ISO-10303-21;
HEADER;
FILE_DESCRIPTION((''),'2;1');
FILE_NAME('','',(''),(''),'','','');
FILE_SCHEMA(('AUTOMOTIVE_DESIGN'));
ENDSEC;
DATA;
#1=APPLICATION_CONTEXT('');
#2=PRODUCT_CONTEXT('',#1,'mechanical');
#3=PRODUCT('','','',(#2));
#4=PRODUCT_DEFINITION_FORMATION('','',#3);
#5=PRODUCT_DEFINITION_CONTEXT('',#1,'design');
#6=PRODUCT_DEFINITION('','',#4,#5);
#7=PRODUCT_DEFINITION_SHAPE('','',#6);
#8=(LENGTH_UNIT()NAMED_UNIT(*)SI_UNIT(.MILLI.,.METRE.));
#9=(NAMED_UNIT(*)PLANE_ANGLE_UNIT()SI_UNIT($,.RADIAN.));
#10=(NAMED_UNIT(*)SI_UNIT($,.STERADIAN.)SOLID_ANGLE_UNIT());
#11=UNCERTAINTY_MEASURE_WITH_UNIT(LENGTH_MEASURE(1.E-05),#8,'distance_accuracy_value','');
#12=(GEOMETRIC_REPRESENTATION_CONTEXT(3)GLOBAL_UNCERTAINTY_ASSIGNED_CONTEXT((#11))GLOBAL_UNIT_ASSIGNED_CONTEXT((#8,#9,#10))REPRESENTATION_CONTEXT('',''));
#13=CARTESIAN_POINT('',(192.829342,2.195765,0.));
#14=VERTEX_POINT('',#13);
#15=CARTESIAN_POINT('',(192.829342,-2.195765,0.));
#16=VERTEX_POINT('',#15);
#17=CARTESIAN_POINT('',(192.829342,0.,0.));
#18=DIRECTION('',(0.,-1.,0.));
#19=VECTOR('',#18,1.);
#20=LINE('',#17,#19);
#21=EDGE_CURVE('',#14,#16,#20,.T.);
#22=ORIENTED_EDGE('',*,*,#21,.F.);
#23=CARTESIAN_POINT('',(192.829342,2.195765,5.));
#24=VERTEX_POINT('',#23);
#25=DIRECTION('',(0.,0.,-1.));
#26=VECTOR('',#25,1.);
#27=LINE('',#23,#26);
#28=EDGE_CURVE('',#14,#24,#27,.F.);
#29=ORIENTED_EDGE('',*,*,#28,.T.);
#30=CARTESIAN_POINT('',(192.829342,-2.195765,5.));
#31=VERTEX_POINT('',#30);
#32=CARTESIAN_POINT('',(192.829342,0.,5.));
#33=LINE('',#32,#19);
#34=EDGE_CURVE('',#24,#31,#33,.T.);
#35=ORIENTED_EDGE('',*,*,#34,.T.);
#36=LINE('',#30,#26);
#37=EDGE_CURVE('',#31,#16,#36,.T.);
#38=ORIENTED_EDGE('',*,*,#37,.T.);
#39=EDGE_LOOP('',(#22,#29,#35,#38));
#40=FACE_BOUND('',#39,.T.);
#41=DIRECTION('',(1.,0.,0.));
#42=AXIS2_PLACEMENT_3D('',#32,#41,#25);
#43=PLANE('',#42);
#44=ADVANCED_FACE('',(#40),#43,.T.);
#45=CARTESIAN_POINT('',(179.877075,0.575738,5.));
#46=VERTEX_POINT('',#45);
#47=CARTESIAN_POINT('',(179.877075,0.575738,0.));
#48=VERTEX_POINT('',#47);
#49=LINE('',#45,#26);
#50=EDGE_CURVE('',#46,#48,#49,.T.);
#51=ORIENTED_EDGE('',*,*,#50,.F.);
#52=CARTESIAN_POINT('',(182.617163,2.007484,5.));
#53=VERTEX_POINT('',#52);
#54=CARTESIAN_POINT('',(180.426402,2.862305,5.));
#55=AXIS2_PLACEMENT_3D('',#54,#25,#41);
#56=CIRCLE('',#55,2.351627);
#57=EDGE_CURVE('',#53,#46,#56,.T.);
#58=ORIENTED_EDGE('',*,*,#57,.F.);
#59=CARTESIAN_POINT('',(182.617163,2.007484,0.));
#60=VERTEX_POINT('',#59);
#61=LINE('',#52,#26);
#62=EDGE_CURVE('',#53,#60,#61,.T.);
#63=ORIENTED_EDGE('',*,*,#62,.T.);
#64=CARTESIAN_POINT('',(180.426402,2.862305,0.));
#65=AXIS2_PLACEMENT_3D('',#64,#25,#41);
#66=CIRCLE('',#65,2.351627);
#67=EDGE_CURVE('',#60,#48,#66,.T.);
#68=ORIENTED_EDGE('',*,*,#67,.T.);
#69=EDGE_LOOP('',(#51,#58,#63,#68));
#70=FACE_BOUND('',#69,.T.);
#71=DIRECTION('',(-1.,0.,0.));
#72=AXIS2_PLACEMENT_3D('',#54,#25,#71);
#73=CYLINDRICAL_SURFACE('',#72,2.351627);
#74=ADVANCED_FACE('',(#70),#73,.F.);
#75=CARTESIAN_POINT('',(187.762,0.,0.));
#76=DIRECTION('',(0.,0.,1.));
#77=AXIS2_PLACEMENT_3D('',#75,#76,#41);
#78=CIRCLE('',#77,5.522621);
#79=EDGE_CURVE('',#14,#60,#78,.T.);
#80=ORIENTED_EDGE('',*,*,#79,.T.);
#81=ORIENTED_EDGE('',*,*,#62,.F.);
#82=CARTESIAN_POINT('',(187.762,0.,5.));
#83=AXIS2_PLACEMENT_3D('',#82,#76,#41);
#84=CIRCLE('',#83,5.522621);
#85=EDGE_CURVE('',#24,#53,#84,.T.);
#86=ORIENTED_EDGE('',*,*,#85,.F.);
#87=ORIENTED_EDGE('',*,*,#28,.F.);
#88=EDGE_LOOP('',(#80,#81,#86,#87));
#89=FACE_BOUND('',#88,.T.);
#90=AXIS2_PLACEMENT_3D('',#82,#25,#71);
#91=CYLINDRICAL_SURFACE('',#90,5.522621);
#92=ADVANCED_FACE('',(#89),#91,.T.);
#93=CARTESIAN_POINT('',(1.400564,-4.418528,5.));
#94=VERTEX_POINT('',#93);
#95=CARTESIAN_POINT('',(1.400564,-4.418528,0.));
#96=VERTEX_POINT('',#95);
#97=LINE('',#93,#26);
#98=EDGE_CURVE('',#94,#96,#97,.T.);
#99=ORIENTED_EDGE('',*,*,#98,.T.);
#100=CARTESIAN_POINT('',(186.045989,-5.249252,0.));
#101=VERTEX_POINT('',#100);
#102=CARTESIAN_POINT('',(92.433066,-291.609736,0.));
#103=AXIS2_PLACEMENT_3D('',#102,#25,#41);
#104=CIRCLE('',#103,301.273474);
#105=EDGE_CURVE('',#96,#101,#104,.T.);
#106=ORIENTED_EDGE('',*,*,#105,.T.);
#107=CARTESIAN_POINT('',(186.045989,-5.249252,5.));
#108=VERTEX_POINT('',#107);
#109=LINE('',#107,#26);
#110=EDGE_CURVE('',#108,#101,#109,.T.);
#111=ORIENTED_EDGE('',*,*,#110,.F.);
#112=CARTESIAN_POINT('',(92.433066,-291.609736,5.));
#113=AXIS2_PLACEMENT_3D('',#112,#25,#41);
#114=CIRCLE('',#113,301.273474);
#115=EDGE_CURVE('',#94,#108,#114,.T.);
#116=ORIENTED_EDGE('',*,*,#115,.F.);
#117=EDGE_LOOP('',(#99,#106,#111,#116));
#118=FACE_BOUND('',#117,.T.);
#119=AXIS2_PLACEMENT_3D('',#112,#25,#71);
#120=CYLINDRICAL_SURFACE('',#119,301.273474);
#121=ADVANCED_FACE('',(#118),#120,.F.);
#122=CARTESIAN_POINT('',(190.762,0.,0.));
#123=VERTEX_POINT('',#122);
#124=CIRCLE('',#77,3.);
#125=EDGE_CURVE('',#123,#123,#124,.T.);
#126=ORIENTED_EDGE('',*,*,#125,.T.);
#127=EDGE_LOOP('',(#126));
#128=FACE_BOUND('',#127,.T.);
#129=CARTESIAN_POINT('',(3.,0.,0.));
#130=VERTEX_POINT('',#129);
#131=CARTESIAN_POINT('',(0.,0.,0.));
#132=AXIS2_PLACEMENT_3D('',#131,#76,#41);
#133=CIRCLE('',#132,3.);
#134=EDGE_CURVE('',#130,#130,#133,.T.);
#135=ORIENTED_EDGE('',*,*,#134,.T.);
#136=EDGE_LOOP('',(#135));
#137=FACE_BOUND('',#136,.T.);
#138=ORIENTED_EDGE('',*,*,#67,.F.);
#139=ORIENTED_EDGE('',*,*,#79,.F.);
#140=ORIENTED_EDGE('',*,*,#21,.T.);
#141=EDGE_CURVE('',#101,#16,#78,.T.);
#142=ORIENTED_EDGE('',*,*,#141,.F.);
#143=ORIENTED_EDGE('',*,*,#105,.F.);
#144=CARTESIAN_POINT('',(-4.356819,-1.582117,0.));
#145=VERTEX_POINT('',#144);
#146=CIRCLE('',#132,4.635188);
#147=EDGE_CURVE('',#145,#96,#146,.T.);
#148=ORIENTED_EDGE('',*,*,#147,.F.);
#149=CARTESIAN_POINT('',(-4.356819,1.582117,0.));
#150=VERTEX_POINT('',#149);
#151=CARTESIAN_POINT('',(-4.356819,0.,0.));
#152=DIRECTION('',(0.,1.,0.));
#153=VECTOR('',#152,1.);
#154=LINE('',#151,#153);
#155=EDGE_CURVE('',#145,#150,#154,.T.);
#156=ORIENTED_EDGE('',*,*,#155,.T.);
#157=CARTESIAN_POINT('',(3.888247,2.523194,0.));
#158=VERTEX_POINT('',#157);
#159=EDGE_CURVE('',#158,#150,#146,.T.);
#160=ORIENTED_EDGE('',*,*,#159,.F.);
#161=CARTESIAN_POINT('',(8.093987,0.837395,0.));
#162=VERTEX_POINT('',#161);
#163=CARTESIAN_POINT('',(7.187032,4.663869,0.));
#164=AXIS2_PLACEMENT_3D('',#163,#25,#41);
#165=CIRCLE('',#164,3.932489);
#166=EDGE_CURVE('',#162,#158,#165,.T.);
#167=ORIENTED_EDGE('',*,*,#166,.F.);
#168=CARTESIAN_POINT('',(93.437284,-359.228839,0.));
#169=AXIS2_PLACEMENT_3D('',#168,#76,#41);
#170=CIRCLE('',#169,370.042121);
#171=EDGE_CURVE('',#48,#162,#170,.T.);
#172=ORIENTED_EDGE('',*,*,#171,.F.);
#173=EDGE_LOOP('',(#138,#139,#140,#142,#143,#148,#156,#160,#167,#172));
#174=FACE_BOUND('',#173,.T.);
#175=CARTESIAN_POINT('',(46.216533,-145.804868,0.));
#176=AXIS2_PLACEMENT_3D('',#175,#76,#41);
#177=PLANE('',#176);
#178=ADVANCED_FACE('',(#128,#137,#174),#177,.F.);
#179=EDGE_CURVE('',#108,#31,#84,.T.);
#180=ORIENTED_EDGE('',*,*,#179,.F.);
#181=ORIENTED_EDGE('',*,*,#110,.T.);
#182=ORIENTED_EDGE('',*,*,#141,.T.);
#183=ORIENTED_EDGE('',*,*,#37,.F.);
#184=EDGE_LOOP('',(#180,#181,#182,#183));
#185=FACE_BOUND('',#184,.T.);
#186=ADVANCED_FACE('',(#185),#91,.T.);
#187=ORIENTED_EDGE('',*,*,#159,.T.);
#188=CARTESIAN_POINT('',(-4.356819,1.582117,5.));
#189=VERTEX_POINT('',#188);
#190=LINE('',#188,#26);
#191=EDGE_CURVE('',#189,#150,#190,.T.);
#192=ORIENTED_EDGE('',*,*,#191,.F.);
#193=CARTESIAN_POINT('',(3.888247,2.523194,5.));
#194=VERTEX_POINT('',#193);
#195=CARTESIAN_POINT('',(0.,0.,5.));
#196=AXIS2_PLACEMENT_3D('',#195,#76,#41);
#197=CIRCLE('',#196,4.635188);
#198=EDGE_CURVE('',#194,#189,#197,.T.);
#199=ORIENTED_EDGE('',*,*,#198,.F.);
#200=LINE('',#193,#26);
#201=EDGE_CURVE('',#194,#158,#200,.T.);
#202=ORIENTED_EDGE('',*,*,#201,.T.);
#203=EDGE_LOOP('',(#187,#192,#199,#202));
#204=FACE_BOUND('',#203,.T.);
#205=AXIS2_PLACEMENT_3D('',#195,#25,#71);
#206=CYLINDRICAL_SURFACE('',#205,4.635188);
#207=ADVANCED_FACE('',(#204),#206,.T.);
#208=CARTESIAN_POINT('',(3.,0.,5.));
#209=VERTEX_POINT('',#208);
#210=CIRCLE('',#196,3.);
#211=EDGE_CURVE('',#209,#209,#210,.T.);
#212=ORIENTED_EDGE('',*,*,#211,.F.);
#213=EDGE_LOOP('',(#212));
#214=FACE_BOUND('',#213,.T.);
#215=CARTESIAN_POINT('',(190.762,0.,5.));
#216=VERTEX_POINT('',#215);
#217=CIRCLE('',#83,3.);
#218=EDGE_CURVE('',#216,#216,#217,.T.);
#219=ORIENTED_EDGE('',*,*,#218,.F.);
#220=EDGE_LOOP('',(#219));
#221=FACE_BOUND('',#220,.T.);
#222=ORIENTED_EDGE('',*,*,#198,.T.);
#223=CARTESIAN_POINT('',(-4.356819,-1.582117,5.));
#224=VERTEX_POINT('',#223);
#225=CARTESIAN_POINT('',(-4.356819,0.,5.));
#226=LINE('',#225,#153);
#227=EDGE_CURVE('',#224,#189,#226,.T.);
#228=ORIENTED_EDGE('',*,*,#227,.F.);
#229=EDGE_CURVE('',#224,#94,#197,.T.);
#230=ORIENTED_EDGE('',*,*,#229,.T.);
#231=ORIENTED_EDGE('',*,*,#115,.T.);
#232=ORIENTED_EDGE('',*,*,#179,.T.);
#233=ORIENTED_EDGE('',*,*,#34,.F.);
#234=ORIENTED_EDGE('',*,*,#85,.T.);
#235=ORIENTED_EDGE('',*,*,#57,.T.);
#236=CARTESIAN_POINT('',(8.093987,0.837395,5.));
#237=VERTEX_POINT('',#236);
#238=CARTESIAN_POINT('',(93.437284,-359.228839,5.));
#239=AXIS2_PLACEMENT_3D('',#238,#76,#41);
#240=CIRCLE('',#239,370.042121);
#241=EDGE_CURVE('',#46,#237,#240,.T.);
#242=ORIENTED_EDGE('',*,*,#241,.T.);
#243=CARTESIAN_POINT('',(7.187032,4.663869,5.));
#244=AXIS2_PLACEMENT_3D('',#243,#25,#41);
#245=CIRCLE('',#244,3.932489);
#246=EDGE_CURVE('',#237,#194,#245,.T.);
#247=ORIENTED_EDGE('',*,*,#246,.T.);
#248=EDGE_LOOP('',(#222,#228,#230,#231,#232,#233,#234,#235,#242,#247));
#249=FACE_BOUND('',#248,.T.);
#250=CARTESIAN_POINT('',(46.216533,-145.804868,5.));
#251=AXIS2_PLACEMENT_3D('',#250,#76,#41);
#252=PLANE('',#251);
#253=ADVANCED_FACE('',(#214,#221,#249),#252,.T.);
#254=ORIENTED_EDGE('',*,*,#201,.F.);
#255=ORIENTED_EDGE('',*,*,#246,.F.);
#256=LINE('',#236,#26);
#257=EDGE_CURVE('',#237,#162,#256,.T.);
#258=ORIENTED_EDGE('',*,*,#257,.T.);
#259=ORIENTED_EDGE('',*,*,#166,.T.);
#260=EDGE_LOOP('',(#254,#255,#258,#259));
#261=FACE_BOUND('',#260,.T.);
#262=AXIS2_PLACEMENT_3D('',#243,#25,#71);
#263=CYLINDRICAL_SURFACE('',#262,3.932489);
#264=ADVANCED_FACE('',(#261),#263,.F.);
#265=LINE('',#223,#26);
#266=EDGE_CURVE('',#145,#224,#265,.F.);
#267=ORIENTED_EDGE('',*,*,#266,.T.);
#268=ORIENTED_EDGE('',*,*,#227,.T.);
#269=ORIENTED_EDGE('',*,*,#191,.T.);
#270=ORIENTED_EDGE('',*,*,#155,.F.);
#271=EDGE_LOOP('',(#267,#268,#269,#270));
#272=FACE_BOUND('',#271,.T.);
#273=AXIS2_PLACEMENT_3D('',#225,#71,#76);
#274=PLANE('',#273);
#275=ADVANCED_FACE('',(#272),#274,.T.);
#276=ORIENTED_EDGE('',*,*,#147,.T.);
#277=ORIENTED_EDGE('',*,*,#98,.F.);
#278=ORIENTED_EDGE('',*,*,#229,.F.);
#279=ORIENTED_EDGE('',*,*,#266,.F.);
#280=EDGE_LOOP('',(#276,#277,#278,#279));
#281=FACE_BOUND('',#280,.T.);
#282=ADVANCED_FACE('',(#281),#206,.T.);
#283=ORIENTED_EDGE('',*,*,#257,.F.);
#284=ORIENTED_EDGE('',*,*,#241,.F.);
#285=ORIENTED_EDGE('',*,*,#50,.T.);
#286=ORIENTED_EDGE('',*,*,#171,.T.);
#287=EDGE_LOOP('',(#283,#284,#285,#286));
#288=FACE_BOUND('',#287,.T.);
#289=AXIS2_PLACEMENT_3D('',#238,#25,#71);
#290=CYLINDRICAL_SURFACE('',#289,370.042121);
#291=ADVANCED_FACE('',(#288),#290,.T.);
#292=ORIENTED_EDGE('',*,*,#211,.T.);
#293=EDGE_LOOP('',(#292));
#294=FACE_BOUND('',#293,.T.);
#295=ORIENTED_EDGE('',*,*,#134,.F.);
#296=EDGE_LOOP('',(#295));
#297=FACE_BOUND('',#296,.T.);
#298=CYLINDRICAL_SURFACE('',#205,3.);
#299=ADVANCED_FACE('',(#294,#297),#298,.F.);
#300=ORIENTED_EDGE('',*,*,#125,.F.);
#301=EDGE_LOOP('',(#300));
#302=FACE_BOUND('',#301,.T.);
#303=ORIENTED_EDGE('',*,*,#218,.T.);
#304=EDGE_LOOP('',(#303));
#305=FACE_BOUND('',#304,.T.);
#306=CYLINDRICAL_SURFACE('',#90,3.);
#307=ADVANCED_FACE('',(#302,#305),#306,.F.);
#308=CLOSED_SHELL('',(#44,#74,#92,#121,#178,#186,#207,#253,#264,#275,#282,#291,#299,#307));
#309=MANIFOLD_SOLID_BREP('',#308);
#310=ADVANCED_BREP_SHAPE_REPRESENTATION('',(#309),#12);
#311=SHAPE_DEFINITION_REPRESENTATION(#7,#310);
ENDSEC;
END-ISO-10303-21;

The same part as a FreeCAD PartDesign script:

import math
import FreeCAD as App
import Part
import Sketcher


def add_polygon(sketch, points):
    """Adds a closed chain of lines whose ends are joined by coincident constraints."""
    first, n = sketch.GeometryCount, len(points)
    for a, b in zip(points, points[1:] + points[:1]):
        sketch.addGeometry(Part.LineSegment(App.Vector(*a, 0), App.Vector(*b, 0)), False)
    for i in range(n):
        sketch.addConstraint(Sketcher.Constraint("Coincident", first + i, 2, first + (i + 1) % n, 1))

doc = App.newDocument("Part")
body = doc.addObject("PartDesign::Body", "Body")

# Sketch on XY plane
sketch1 = body.newObject("Sketcher::SketchObject", "Sketch")
sketch1.AttachmentSupport = (doc.getObject("XY_Plane"), [""])
sketch1.MapMode = "FlatFace"
sketch1.addGeometry(Part.ArcOfCircle(Part.Circle(App.Vector(187.8, 0, 0), App.Vector(0, 0, 1), 5.5), math.radians(-108), math.radians(159)), False)
sketch1.addGeometry(Part.ArcOfCircle(Part.Circle(App.Vector(180.4, 2.9, 0), App.Vector(0, 0, 1), 2.4), math.radians(-104), math.radians(-21)), False)
sketch1.addGeometry(Part.ArcOfCircle(Part.Circle(App.Vector(93.4, -359.2, 0), App.Vector(0, 0, 1), 370), math.radians(76), math.radians(103)), False)
sketch1.addGeometry(Part.ArcOfCircle(Part.Circle(App.Vector(7.2, 4.7, 0), App.Vector(0, 0, 1), 3.9), math.radians(-147), math.radians(-77)), False)
sketch1.addGeometry(Part.ArcOfCircle(Part.Circle(App.Vector(0, 0, 0), App.Vector(0, 0, 1), 4.6), math.radians(33), math.radians(288)), False)
sketch1.addGeometry(Part.ArcOfCircle(Part.Circle(App.Vector(92.4, -291.6, 0), App.Vector(0, 0, 1), 301.3), math.radians(72), math.radians(108)), False)
sketch1.addGeometry(Part.Circle(App.Vector(0, 0, 0), App.Vector(0, 0, 1), 3), False)
sketch1.addGeometry(Part.Circle(App.Vector(187.8, 0, 0), App.Vector(0, 0, 1), 3), False)
sketch1.addConstraint(Sketcher.Constraint("Tangent", 0, 2, 1, 2))
sketch1.addConstraint(Sketcher.Constraint("Tangent", 1, 1, 2, 1))
sketch1.addConstraint(Sketcher.Constraint("Tangent", 2, 2, 3, 2))
sketch1.addConstraint(Sketcher.Constraint("Tangent", 3, 1, 4, 1))
sketch1.addConstraint(Sketcher.Constraint("Tangent", 4, 2, 5, 2))
sketch1.addConstraint(Sketcher.Constraint("Tangent", 5, 1, 0, 1))
sketch1.addConstraint(Sketcher.Constraint("Coincident", 4, 3, -1, 1))
sketch1.addConstraint(Sketcher.Constraint("Coincident", 6, 3, -1, 1))
sketch1.addConstraint(Sketcher.Constraint("Coincident", 7, 3, 0, 3))
sketch1.addConstraint(Sketcher.Constraint("Equal", 6, 7))
sketch1.addConstraint(Sketcher.Constraint("PointOnObject", 0, 3, -1))
sketch1.addConstraint(Sketcher.Constraint("Diameter", 6, 6.0))
sketch1.addConstraint(Sketcher.Constraint("Radius", 0, 5.522621))
sketch1.addConstraint(Sketcher.Constraint("Radius", 2, 370.042121))
sketch1.addConstraint(Sketcher.Constraint("Radius", 3, 3.932489))
sketch1.addConstraint(Sketcher.Constraint("Radius", 4, 4.635188))
sketch1.addConstraint(Sketcher.Constraint("DistanceX", -1, 1, 0, 3, 187.762))
sketch1.addConstraint(Sketcher.Constraint("Radius", 1, 2.351627))
sketch1.addConstraint(Sketcher.Constraint("Radius", 5, 301.273474))
sketch1.addConstraint(Sketcher.Constraint("DistanceY", 2, 2, 3, 1, 1.685799))
sketch1.addConstraint(Sketcher.Constraint("DistanceY", 2, 3, -1, 1, 359.228839))
pad1 = body.newObject("PartDesign::Pad", "Pad")
pad1.Profile = sketch1
pad1.Length = 5

# Sketch on XY plane
sketch2 = body.newObject("Sketcher::SketchObject", "Sketch001")
sketch2.AttachmentSupport = (doc.getObject("XY_Plane"), [""])
sketch2.MapMode = "FlatFace"
add_polygon(sketch2, [(192.8, 4.1), (192.8, -3.4), (194.4, -3.4), (194.4, 4.1)])  # lines 0-3
add_polygon(sketch2, [(-5, 2.5), (-5, -2.6), (-4.4, -2.6), (-4.4, 2.5)])  # lines 4-7
sketch2.addConstraint(Sketcher.Constraint("Vertical", 0))
sketch2.addConstraint(Sketcher.Constraint("Horizontal", 1))
sketch2.addConstraint(Sketcher.Constraint("Vertical", 2))
sketch2.addConstraint(Sketcher.Constraint("Horizontal", 3))
sketch2.addConstraint(Sketcher.Constraint("Vertical", 4))
sketch2.addConstraint(Sketcher.Constraint("Horizontal", 5))
sketch2.addConstraint(Sketcher.Constraint("Vertical", 6))
sketch2.addConstraint(Sketcher.Constraint("Horizontal", 7))
sketch2.addConstraint(Sketcher.Constraint("DistanceX", 1, 1, 1, 2, 1.618529))
sketch2.addConstraint(Sketcher.Constraint("DistanceX", 5, 1, 5, 2, 0.65183))
sketch2.addConstraint(Sketcher.Constraint("DistanceY", 0, 2, 0, 1, 7.505646))
sketch2.addConstraint(Sketcher.Constraint("DistanceY", 4, 2, 4, 1, 5.051684))
sketch2.addConstraint(Sketcher.Constraint("DistanceX", -1, 1, 0, 2, 192.829342))
sketch2.addConstraint(Sketcher.Constraint("DistanceX", 4, 2, -1, 1, 5.00865))
sketch2.addConstraint(Sketcher.Constraint("DistanceY", 4, 2, -1, 1, 2.564588))
sketch2.addConstraint(Sketcher.Constraint("DistanceY", 0, 2, 4, 2, 0.80695))
pocket1 = body.newObject("PartDesign::Pocket", "Pocket")
pocket1.Profile = sketch2
pocket1.Type = "ThroughAll"
pocket1.Reversed = True

doc.recompute()
